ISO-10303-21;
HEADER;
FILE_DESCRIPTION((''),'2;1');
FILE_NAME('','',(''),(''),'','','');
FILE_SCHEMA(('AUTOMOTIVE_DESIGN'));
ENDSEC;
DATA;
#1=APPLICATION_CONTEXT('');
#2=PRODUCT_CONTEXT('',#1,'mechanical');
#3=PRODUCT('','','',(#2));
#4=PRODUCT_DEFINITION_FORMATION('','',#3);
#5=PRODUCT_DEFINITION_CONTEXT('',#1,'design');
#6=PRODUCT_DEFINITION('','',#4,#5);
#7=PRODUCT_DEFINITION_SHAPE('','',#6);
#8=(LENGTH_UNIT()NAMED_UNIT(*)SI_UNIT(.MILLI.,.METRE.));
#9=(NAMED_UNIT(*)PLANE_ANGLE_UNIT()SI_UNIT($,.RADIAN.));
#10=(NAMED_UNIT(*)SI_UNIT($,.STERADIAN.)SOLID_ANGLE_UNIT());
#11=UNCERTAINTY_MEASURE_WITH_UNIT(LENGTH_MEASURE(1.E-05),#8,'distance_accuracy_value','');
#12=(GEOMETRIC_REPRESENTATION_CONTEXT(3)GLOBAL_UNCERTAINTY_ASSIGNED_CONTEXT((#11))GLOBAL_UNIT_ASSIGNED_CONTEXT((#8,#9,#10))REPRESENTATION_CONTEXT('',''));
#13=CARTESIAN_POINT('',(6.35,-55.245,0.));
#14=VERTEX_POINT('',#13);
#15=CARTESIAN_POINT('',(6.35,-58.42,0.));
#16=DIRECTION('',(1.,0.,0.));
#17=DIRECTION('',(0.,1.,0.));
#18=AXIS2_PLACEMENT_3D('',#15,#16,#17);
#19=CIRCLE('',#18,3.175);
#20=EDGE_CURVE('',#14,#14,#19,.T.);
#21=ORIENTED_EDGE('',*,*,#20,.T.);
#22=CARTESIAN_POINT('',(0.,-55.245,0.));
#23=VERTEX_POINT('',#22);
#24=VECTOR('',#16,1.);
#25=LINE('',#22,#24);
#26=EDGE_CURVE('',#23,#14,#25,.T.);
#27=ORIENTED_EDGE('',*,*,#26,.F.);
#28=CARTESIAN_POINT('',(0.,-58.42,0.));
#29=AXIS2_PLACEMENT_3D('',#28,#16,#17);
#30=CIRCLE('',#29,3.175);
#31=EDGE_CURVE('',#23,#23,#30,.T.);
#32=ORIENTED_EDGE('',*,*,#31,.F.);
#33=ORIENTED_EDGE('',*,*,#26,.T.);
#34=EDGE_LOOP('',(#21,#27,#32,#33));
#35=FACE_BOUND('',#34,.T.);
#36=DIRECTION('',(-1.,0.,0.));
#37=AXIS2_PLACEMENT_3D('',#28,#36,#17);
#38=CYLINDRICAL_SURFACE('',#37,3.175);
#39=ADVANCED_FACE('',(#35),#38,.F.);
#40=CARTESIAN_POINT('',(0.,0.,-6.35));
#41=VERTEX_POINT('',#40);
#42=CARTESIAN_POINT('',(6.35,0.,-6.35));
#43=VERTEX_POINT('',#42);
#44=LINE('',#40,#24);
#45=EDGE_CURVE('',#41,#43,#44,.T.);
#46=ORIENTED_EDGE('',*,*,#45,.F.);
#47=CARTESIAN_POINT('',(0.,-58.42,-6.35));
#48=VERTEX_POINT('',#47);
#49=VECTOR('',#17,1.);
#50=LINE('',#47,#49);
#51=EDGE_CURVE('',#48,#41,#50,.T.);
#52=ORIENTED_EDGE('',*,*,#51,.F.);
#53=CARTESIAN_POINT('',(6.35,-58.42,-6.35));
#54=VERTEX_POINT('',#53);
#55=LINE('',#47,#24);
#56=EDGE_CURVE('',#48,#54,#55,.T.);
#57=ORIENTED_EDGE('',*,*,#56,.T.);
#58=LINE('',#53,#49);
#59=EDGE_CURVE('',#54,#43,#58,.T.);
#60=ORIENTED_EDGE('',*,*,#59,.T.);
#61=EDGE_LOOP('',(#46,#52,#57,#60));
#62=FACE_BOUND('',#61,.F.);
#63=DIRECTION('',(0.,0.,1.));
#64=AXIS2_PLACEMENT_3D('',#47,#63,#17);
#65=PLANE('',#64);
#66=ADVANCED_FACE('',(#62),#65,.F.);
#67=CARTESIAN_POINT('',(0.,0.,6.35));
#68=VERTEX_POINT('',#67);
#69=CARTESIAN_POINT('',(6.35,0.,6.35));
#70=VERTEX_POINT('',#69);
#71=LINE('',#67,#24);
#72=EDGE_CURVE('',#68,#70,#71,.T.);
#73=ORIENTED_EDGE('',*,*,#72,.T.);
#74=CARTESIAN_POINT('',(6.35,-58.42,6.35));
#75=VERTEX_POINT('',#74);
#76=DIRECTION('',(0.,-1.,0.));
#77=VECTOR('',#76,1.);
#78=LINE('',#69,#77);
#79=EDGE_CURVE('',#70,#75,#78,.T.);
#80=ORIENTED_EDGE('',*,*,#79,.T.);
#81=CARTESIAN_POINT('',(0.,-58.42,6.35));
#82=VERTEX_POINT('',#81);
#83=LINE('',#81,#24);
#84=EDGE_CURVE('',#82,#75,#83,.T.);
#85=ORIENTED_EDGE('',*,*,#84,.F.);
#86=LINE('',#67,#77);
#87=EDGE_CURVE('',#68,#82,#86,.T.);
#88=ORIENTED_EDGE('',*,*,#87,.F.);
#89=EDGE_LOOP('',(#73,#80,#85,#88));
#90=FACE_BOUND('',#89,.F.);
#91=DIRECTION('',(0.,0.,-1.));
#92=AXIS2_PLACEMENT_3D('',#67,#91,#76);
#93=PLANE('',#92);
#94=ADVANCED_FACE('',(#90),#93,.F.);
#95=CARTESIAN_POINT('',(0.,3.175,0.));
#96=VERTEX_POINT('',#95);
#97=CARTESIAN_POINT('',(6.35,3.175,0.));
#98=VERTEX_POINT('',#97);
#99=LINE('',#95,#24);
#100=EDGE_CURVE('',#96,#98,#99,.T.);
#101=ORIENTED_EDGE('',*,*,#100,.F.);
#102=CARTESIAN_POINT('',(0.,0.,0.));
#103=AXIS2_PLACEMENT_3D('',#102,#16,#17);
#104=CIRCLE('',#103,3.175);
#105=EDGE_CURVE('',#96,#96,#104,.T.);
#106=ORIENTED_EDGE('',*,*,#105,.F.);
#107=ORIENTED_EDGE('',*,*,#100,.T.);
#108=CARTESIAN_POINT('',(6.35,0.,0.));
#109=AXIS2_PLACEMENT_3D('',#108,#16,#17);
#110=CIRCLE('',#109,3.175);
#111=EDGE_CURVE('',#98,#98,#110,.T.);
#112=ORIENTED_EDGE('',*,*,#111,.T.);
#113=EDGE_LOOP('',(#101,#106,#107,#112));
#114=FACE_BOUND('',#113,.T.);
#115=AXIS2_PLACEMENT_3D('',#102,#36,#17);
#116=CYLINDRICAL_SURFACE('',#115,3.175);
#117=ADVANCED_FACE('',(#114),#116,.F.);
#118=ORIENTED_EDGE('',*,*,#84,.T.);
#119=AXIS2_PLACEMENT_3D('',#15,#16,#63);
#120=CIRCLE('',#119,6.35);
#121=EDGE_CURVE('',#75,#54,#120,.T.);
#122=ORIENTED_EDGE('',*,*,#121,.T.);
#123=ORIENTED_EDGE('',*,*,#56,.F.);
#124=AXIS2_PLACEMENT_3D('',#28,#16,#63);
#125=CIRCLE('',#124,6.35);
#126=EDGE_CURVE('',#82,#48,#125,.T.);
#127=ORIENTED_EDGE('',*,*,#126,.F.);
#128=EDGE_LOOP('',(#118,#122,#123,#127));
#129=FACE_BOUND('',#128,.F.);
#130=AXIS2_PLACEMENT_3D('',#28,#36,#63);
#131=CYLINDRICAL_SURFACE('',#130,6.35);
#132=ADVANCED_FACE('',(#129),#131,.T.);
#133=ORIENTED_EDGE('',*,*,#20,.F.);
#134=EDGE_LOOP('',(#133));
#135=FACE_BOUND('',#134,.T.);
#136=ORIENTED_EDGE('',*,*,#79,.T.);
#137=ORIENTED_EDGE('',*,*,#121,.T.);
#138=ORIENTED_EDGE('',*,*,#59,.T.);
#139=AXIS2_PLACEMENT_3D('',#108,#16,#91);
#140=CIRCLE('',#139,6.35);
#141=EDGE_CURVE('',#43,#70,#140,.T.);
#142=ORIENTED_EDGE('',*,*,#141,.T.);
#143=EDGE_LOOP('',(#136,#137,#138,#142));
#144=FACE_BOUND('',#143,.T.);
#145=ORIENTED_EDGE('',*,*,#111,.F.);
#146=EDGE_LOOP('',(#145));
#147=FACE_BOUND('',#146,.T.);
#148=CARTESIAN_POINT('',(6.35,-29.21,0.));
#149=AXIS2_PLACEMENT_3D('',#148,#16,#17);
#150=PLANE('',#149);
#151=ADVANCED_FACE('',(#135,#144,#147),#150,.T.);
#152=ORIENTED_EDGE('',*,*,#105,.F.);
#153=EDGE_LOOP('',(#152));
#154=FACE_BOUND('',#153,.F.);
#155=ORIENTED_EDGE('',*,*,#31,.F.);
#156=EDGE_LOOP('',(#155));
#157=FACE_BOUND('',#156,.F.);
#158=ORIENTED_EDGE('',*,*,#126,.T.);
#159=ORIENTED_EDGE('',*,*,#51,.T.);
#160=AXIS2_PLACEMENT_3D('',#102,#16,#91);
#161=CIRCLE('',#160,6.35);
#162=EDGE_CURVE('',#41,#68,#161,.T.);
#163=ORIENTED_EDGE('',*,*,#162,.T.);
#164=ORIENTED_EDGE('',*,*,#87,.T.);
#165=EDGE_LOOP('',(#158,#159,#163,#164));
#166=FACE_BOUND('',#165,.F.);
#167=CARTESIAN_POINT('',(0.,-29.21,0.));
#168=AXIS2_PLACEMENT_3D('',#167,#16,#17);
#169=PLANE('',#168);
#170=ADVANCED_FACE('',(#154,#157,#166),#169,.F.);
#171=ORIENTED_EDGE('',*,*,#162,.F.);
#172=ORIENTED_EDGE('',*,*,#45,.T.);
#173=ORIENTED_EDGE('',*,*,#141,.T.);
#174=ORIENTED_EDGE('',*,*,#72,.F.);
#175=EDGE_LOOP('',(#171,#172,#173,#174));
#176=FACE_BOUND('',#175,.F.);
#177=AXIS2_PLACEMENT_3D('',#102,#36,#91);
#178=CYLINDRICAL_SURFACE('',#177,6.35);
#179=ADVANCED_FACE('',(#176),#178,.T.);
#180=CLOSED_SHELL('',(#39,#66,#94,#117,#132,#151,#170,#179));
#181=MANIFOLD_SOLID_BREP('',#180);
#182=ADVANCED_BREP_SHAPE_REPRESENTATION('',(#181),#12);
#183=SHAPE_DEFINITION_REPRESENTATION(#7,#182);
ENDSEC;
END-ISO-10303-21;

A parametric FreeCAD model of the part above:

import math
import FreeCAD as App
import Part
import Sketcher
from FreeCAD import Vector
Q = App.Units.Quantity

doc = App.newDocument("Part")
params = doc.addObject("Spreadsheet::Sheet", "Params")
for row, (alias, value) in enumerate([
    ("sketch1_diameter", "0.25 in"),
    ("sketch1_radius", "0.25 in"),
    ("sketch1_width", "2.3 in"),
    ("pad1_length", "0.25 in"),
], start=1):
    params.set(f"A{row}", alias)
    params.set(f"B{row}", "=" + value)
    params.setAlias(f"B{row}", alias)

body = doc.addObject("PartDesign::Body", "Body")

sketch1 = body.newObject("Sketcher::SketchObject", "Sketch")
sketch1.AttachmentSupport = (doc.getObject("YZ_Plane"), [""])
sketch1.MapMode = "FlatFace"
sketch1.addGeometry(Part.ArcOfCircle(Part.Circle(Vector(0, 0, 0), Vector(0, 0, 1), 6.3), math.radians(-90), math.radians(90)), False)
sketch1.addGeometry(Part.LineSegment(Vector(0, 6.3, 0), Vector(-58.4, 6.3, 0)), False)
sketch1.addGeometry(Part.ArcOfCircle(Part.Circle(Vector(-58.4, 0, 0), Vector(0, 0, 1), 6.3), math.radians(90), math.radians(270)), False)
sketch1.addGeometry(Part.LineSegment(Vector(-58.4, -6.3, 0), Vector(0, -6.3, 0)), False)
sketch1.addGeometry(Part.Circle(Vector(-58.4, 0, 0), Vector(0, 0, 1), 3.2), False)
sketch1.addGeometry(Part.Circle(Vector(0, 0, 0), Vector(0, 0, 1), 3.2), False)
sketch1.addConstraint(Sketcher.Constraint("Tangent", 0, 2, 1, 1))
sketch1.addConstraint(Sketcher.Constraint("Tangent", 1, 2, 2, 1))
sketch1.addConstraint(Sketcher.Constraint("Tangent", 2, 2, 3, 1))
sketch1.addConstraint(Sketcher.Constraint("Tangent", 3, 2, 0, 1))
sketch1.addConstraint(Sketcher.Constraint("Horizontal", 1))
sketch1.addConstraint(Sketcher.Constraint("Horizontal", 3))
sketch1.addConstraint(Sketcher.Constraint("Coincident", 0, 3, -1, 1))
sketch1.addConstraint(Sketcher.Constraint("Coincident", 5, 3, -1, 1))
sketch1.addConstraint(Sketcher.Constraint("Coincident", 4, 3, 2, 3))
sketch1.addConstraint(Sketcher.Constraint("Equal", 4, 5))
sketch1.addConstraint(Sketcher.Constraint("Diameter", 4, Q("0.25 in")))
sketch1.addConstraint(Sketcher.Constraint("Radius", 0, Q("0.25 in")))
sketch1.addConstraint(Sketcher.Constraint("DistanceX", 1, 2, 1, 1, Q("2.3 in")))
sketch1.setExpression("Constraints[10]", "Params.sketch1_diameter")
sketch1.setExpression("Constraints[11]", "Params.sketch1_radius")
sketch1.setExpression("Constraints[12]", "Params.sketch1_width")
pad1 = body.newObject("PartDesign::Pad", "Pad")
pad1.Profile = sketch1
pad1.setExpression("Length", "Params.pad1_length")

doc.recompute()
